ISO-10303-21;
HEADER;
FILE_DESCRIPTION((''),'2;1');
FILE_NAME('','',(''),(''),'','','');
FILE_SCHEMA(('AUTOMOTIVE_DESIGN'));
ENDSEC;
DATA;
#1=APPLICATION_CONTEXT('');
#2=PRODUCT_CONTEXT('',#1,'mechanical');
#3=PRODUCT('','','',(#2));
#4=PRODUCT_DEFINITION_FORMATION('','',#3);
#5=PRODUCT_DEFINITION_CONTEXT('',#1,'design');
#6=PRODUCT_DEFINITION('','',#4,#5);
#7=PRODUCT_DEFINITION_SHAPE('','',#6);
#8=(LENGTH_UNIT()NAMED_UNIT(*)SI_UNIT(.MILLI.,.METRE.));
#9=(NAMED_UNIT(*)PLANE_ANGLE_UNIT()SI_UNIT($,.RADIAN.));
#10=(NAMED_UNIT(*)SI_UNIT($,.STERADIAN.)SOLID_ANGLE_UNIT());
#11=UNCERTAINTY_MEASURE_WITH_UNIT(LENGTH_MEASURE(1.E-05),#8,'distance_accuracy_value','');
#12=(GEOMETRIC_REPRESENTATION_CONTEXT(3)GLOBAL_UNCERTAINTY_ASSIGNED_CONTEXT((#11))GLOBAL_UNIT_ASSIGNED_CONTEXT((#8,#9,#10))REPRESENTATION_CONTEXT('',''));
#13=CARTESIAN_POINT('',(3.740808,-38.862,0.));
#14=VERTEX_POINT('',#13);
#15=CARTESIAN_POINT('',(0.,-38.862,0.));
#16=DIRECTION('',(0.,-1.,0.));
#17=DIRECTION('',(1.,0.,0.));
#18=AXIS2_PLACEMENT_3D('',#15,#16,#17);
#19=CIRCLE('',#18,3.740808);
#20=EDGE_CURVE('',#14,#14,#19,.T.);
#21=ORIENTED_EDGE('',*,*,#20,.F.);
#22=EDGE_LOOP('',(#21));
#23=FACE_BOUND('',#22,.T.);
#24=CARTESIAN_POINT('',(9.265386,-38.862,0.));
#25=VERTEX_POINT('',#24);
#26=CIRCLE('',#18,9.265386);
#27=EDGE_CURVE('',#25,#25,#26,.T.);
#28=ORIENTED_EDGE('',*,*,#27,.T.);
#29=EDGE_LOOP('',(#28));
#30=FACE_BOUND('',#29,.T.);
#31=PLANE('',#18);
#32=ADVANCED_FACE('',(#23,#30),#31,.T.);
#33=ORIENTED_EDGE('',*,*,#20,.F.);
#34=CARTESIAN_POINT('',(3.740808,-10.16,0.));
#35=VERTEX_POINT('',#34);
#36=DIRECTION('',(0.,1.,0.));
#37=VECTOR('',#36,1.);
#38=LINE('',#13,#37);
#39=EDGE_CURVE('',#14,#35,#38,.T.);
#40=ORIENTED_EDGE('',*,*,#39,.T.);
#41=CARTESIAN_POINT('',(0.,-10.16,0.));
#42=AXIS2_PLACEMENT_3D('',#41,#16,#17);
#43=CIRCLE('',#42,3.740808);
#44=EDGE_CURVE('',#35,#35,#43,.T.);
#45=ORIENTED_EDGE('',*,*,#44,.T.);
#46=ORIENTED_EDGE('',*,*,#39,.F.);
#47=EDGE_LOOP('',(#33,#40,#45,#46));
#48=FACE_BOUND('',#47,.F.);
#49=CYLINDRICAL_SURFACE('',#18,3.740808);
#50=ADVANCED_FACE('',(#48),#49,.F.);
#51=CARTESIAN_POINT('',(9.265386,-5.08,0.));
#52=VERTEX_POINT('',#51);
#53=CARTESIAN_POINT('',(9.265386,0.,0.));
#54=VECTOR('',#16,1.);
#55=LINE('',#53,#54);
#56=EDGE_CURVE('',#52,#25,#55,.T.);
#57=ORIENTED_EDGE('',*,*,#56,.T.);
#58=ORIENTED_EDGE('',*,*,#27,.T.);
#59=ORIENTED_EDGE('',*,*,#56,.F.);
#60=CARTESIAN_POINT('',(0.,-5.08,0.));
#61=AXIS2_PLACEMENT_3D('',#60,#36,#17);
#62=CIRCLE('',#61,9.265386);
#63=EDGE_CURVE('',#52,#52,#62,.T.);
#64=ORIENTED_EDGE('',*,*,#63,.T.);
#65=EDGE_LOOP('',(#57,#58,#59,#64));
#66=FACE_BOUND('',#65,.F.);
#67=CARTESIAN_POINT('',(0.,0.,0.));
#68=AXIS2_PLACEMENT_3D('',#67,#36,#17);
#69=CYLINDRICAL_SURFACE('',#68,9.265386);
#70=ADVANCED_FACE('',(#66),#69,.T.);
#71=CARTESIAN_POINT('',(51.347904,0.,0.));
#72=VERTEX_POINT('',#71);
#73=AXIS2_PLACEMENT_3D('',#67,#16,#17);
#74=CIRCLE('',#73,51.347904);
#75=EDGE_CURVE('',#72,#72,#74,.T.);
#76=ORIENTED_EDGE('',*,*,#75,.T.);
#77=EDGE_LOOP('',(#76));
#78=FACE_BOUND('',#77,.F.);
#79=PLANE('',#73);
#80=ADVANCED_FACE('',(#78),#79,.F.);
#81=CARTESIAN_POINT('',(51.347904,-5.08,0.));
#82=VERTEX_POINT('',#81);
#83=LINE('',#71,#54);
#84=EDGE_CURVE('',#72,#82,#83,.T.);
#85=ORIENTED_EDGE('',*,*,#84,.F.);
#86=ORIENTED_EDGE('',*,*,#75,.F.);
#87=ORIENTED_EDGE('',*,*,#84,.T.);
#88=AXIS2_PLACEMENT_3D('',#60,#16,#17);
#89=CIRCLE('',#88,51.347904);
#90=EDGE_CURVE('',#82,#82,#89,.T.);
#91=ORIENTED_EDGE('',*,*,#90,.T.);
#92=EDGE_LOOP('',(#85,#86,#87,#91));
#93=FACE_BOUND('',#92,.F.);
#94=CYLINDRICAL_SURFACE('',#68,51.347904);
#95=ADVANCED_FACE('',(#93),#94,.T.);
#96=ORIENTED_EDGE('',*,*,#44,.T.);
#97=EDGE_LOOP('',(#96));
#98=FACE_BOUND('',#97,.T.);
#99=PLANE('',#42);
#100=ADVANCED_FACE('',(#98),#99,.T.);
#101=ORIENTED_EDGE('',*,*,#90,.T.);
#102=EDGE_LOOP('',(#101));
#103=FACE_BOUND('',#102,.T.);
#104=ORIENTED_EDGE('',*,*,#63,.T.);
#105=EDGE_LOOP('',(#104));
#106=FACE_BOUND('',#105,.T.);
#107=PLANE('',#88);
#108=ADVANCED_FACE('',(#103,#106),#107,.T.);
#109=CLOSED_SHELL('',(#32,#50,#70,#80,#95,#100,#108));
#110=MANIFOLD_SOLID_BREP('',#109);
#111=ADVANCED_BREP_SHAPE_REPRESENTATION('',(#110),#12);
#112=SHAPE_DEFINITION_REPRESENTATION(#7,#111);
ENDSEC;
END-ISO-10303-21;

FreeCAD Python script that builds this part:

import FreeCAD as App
import Part
import Sketcher

V = App.Vector
Q = App.Units.Quantity

doc = App.newDocument("Part")
body = doc.addObject("PartDesign::Body", "Body")

# Sketch on XZ plane
sketch1 = body.newObject("Sketcher::SketchObject", "Sketch")
sketch1.AttachmentSupport = (doc.getObject("XZ_Plane"), [""])
sketch1.MapMode = "FlatFace"
sketch1.addGeometry(Part.Circle(V(0, 0, 0), V(0, 0, 1), 51), False)
sketch1.addConstraint([
    Sketcher.Constraint("Coincident", 0, 3, -1, 1),
    Sketcher.Constraint("Diameter", 0, 102.695808),
])
pad1 = body.newObject("PartDesign::Pad", "Pad")
pad1.Profile = sketch1
pad1.Length = Q("0.2 in")

# Sketch on XZ plane
sketch2 = body.newObject("Sketcher::SketchObject", "Sketch001")
sketch2.AttachmentSupport = (doc.getObject("XZ_Plane"), [""])
sketch2.MapMode = "FlatFace"
sketch2.addGeometry(Part.Circle(V(0, 0, 0), V(0, 0, 1), 9), False)
sketch2.addConstraint([
    Sketcher.Constraint("Coincident", 0, 3, -1, 1),
    Sketcher.Constraint("Diameter", 0, 18.530772),
])
pad2 = body.newObject("PartDesign::Pad", "Pad001")
pad2.Profile = sketch2
pad2.Length = Q("1.53 in")

# Sketch on XZ plane
sketch3 = body.newObject("Sketcher::SketchObject", "Sketch002")
sketch3.AttachmentSupport = (doc.getObject("XZ_Plane"), [""])
sketch3.MapMode = "FlatFace"
sketch3.AttachmentOffset = App.Placement(V(0, 0, 1.53 * 25.4), App.Rotation())
sketch3.addGeometry(Part.Circle(V(0, 0, 0), V(0, 0, 1), 3.7), False)
sketch3.addConstraint([
    Sketcher.Constraint("Coincident", 0, 3, -1, 1),
    Sketcher.Constraint("Diameter", 0, 7.481616),
])
pocket1 = body.newObject("PartDesign::Pocket", "Pocket")
pocket1.Profile = sketch3
pocket1.Length = Q("1.13 in")

doc.recompute()
